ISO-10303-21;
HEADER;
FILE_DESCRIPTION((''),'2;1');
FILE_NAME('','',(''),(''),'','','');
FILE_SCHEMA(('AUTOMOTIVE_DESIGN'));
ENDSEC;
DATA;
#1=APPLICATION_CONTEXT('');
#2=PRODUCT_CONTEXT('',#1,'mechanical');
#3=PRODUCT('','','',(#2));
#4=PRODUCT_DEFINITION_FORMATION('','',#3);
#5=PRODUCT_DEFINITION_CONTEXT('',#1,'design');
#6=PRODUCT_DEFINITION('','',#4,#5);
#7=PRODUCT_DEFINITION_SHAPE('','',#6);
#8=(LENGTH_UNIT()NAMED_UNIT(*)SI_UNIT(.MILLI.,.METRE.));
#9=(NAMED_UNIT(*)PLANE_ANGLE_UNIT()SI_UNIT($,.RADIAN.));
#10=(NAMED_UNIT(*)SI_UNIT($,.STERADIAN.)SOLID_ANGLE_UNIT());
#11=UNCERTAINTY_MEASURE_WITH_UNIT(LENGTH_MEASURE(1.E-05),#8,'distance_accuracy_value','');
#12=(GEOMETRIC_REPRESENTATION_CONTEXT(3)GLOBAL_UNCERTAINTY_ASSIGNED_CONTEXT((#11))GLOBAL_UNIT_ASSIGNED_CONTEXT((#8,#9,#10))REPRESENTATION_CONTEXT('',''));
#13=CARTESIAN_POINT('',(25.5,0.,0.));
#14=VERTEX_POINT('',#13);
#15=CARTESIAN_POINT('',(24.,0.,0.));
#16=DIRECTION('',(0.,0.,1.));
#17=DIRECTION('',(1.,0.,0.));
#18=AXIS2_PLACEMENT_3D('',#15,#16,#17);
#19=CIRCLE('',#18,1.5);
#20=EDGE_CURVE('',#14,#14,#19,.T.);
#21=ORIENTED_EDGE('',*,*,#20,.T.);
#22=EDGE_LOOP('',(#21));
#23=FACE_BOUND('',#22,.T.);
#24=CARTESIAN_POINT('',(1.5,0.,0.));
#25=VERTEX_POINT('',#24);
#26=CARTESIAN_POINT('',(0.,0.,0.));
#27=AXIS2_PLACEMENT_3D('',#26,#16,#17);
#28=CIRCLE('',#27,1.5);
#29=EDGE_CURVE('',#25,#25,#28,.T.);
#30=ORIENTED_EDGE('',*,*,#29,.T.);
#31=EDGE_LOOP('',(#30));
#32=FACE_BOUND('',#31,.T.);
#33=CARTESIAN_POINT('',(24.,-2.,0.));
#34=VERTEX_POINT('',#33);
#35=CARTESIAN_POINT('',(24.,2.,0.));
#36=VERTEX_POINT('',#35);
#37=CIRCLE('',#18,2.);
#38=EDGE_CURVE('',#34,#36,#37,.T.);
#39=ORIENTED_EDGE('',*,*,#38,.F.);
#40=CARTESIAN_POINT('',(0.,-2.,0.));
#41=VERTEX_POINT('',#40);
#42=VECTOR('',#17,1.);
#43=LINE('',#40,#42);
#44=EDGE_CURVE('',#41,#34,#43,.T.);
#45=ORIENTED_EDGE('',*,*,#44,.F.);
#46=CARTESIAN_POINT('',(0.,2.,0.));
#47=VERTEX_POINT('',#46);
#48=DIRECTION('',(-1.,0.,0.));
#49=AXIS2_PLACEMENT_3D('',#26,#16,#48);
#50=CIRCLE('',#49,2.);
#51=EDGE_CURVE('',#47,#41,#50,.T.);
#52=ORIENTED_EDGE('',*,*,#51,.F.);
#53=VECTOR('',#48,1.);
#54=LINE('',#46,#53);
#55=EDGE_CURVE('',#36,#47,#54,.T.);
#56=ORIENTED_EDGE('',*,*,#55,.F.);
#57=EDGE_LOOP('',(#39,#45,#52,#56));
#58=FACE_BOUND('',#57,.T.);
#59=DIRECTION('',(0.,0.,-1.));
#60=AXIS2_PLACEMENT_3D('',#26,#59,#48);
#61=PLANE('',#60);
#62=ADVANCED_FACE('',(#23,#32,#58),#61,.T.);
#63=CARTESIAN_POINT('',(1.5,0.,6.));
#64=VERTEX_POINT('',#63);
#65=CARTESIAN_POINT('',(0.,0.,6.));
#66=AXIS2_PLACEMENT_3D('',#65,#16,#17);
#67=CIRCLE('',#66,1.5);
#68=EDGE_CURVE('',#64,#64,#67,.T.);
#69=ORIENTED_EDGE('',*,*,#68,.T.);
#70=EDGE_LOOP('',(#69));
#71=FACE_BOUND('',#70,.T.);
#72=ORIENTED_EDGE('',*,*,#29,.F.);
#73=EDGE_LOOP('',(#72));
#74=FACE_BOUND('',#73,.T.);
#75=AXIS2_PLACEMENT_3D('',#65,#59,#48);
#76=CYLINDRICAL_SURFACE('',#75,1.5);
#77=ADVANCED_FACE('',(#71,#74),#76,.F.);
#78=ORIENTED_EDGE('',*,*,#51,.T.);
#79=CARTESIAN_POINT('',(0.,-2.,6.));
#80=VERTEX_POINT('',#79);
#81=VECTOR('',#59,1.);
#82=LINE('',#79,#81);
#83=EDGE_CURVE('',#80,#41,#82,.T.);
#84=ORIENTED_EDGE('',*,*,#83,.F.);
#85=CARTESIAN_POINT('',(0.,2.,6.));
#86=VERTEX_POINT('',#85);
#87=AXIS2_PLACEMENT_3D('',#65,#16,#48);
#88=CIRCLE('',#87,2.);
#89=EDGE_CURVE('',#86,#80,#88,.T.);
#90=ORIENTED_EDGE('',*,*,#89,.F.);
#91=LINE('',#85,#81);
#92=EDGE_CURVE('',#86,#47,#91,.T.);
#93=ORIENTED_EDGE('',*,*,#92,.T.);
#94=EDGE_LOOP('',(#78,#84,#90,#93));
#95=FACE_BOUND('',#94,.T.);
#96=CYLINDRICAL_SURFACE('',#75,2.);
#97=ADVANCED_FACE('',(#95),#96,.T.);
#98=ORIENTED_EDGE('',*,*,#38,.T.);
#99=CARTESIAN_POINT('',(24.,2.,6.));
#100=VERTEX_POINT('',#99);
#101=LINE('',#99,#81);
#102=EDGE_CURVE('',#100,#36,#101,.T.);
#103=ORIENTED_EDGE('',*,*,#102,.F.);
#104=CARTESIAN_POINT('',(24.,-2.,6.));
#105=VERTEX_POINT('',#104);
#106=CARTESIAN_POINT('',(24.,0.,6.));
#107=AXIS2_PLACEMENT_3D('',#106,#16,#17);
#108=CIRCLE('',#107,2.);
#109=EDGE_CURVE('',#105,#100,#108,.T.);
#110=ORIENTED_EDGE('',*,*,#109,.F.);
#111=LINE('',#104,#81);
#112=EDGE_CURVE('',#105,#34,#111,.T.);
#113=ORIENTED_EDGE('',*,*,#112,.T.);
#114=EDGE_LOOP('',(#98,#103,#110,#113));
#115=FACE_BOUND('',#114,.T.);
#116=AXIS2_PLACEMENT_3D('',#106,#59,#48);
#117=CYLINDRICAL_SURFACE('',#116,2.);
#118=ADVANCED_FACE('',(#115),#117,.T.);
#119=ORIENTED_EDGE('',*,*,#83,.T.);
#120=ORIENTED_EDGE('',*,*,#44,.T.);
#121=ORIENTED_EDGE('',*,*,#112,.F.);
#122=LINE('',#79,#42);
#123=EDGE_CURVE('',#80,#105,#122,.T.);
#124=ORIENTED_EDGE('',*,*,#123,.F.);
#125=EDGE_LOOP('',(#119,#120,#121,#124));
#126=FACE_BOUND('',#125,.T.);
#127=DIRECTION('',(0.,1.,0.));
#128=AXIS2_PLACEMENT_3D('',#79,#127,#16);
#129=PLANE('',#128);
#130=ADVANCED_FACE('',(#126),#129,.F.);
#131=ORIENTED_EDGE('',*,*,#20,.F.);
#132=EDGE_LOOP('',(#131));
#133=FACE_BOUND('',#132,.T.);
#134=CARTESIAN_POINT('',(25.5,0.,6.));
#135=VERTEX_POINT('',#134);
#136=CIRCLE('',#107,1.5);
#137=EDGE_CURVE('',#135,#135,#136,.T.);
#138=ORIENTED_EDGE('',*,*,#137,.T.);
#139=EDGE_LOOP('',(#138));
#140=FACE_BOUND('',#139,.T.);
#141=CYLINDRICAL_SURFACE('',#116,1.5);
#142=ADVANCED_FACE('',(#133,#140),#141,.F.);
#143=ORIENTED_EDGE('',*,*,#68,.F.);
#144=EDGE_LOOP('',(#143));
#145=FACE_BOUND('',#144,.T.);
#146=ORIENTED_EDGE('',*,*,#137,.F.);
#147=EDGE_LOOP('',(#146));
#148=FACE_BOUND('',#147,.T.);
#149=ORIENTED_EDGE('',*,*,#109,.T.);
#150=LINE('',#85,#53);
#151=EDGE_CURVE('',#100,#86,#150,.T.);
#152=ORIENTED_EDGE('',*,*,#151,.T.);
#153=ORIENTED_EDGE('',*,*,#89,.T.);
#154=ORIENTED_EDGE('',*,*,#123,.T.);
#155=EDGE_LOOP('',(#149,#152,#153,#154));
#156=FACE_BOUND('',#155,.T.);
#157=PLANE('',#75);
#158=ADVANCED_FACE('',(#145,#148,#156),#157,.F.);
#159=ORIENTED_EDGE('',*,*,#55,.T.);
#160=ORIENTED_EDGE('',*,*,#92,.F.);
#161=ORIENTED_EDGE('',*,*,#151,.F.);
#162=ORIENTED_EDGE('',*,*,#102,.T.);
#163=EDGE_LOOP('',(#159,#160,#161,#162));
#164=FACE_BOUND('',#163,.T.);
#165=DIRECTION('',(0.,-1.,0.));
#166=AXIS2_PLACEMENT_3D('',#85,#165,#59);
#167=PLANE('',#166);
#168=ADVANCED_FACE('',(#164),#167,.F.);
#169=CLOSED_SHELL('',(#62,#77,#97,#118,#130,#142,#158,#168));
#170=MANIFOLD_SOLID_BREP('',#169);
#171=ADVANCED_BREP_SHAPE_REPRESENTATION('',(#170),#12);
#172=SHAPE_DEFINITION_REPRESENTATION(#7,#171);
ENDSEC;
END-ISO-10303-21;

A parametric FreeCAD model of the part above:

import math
import FreeCAD as App
import Part
import Sketcher
Q = App.Units.Quantity

doc = App.newDocument("Part")
body = doc.addObject("PartDesign::Body", "Body")

sketch1 = body.newObject("Sketcher::SketchObject", "Sketch")
sketch1.AttachmentSupport = (doc.getObject("XY_Plane"), [""])
sketch1.MapMode = "FlatFace"
sketch1.addGeometry(Part.LineSegment(App.Vector(0, -2, 0), App.Vector(24, -2, 0)), False)
sketch1.addGeometry(Part.ArcOfCircle(Part.Circle(App.Vector(24, 0, 0), App.Vector(0, 0, 1), 2), math.radians(-90), math.radians(90)), False)
sketch1.addGeometry(Part.LineSegment(App.Vector(24, 2, 0), App.Vector(0, 2, 0)), False)
sketch1.addGeometry(Part.ArcOfCircle(Part.Circle(App.Vector(0, 0, 0), App.Vector(0, 0, 1), 2), math.radians(90), math.radians(270)), False)
sketch1.addGeometry(Part.Circle(App.Vector(0, 0, 0), App.Vector(0, 0, 1), 1.5), False)
sketch1.addGeometry(Part.Circle(App.Vector(24, 0, 0), App.Vector(0, 0, 1), 1.5), False)
sketch1.addConstraint(Sketcher.Constraint("Tangent", 0, 2, 1, 1))
sketch1.addConstraint(Sketcher.Constraint("Tangent", 1, 2, 2, 1))
sketch1.addConstraint(Sketcher.Constraint("Tangent", 2, 2, 3, 1))
sketch1.addConstraint(Sketcher.Constraint("Tangent", 3, 2, 0, 1))
sketch1.addConstraint(Sketcher.Constraint("Horizontal", 0))
sketch1.addConstraint(Sketcher.Constraint("Horizontal", 2))
sketch1.addConstraint(Sketcher.Constraint("Coincident", 3, 3, -1, 1))
sketch1.addConstraint(Sketcher.Constraint("Coincident", 4, 3, -1, 1))
sketch1.addConstraint(Sketcher.Constraint("Coincident", 5, 3, 1, 3))
sketch1.addConstraint(Sketcher.Constraint("Equal", 4, 5))
sketch1.addConstraint(Sketcher.Constraint("Diameter", 4, Q("3 mm")))
sketch1.addConstraint(Sketcher.Constraint("Radius", 1, Q("2 mm")))
sketch1.addConstraint(Sketcher.Constraint("DistanceX", 0, 1, 0, 2, Q("24 mm")))
pad1 = body.newObject("PartDesign::Pad", "Pad")
pad1.Profile = sketch1
pad1.Length = 6

doc.recompute()
